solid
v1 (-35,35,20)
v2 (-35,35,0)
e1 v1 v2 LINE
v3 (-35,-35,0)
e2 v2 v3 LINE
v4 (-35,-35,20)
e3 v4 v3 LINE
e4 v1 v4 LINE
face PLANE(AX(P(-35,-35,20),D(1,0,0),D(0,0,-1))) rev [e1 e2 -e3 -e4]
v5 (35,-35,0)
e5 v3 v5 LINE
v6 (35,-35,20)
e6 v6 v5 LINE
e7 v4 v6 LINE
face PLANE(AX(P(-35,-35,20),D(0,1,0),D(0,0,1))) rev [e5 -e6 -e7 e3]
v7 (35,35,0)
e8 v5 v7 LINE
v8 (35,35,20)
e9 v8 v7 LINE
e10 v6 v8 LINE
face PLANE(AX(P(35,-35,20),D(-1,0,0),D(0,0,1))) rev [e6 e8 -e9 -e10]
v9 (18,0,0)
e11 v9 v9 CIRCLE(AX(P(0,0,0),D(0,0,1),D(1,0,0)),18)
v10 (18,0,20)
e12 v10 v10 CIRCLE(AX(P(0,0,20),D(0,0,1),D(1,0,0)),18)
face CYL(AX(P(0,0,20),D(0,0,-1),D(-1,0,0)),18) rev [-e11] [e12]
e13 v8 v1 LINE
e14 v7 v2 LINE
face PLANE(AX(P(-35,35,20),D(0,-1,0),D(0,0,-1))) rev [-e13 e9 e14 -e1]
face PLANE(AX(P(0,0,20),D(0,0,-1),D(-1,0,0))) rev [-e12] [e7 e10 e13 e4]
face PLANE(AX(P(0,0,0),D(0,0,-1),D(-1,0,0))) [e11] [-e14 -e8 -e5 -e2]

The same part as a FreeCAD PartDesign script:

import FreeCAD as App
import Part
import Sketcher

V = App.Vector
Q = App.Units.Quantity


def add_polygon(sketch, points):
    """Adds a closed chain of lines whose ends are joined by coincident constraints."""
    first, n = sketch.GeometryCount, len(points)
    for a, b in zip(points, points[1:] + points[:1]):
        sketch.addGeometry(Part.LineSegment(App.Vector(*a, 0), App.Vector(*b, 0)), False)
    for i in range(n):
        sketch.addConstraint(Sketcher.Constraint("Coincident", first + i, 2, first + (i + 1) % n, 1))

doc = App.newDocument("Part")
body = doc.addObject("PartDesign::Body", "Body")

# Sketch on XY plane
sketch1 = body.newObject("Sketcher::SketchObject", "Sketch")
sketch1.AttachmentSupport = (doc.getObject("XY_Plane"), [""])
sketch1.MapMode = "FlatFace"
add_polygon(sketch1, [(-35, 35), (-35, -35), (35, -35), (35, 35)])  # lines 0-3
sketch1.addGeometry(Part.Circle(V(0, 0, 0), V(0, 0, 1), 18), False)  # 4
sketch1.addConstraint(Sketcher.Constraint("Vertical", 0))
sketch1.addConstraint(Sketcher.Constraint("Horizontal", 1))
sketch1.addConstraint(Sketcher.Constraint("Vertical", 2))
sketch1.addConstraint(Sketcher.Constraint("Horizontal", 3))
sketch1.addConstraint(Sketcher.Constraint("Coincident", 4, 3, -1, 1))
sketch1.addConstraint(Sketcher.Constraint("Symmetric", 0, 2, 2, 2, -1, 1))
sketch1.addConstraint(Sketcher.Constraint("Equal", 3, 0))
sketch1.addConstraint(Sketcher.Constraint("Diameter", 4, Q("36 mm")))
sketch1.addConstraint(Sketcher.Constraint("DistanceX", 1, 1, 1, 2, Q("70 mm")))
pad1 = body.newObject("PartDesign::Pad", "Pad")
pad1.Profile = sketch1
pad1.Length = 20

doc.recompute()
